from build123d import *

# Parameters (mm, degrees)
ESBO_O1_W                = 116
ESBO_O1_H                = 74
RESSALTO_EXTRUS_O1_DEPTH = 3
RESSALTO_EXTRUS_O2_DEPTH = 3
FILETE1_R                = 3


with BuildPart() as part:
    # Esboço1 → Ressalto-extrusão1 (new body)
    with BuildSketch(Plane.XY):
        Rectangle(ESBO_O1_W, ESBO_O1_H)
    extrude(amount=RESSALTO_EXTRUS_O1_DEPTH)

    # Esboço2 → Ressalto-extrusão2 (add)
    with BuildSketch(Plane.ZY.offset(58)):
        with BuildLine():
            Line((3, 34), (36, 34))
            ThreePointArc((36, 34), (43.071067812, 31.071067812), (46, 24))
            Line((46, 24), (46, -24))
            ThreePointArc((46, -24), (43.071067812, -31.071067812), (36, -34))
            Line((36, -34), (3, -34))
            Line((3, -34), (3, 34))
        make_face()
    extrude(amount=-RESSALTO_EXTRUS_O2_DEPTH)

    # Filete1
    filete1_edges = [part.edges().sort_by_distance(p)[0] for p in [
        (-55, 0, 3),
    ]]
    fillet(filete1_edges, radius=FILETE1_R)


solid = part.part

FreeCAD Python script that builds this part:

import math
import FreeCAD as App
import Part
import Sketcher
from FreeCAD import Vector


def edges_at(feature, points):
    """Names of the edges that pass closest to the given points."""
    edges = feature.Shape.Edges
    near = lambda p: min(range(len(edges)), key=lambda i: edges[i].distToShape(Part.Vertex(*p))[0])
    return sorted({f"Edge{near(p) + 1}" for p in points})


def add_polygon(sketch, points):
    """Adds a closed chain of lines whose ends are joined by coincident constraints."""
    first, n = sketch.GeometryCount, len(points)
    for a, b in zip(points, points[1:] + points[:1]):
        sketch.addGeometry(Part.LineSegment(App.Vector(*a, 0), App.Vector(*b, 0)), False)
    for i in range(n):
        sketch.addConstraint(Sketcher.Constraint("Coincident", first + i, 2, first + (i + 1) % n, 1))

doc = App.newDocument("Part")
params = doc.addObject("Spreadsheet::Sheet", "Params")
for row, (alias, value) in enumerate([
    ("sketch1_width", "116 mm"),
    ("sketch1_height", "74 mm"),
    ("pad1_length", "3 mm"),
    ("sketch2_radius", "10 mm"),
    ("sketch2_width", "68 mm"),
    ("sketch2_height", "33 mm"),
    ("pad2_length", "3 mm"),
    ("fillet_radius", "3 mm"),
], start=1):
    params.set(f"A{row}", alias)
    params.set(f"B{row}", "=" + value)
    params.setAlias(f"B{row}", alias)

body = doc.addObject("PartDesign::Body", "Body")

# Sketch on XY plane
sketch1 = body.newObject("Sketcher::SketchObject", "Sketch")
sketch1.AttachmentSupport = (doc.getObject("XY_Plane"), [""])
sketch1.MapMode = "FlatFace"
add_polygon(sketch1, [(-58, 37), (-58, -37), (58, -37), (58, 37)])  # lines 0-3
sketch1.addConstraint([
    Sketcher.Constraint("Vertical", 0),
    Sketcher.Constraint("Horizontal", 1),
    Sketcher.Constraint("Vertical", 2),
    Sketcher.Constraint("Horizontal", 3),
    Sketcher.Constraint("Symmetric", 0, 2, 2, 2, -1, 1),
    Sketcher.Constraint("DistanceX", 1, 1, 1, 2, 116.0),
    Sketcher.Constraint("DistanceY", 0, 2, 0, 1, 74.0),
])
sketch1.setExpression("Constraints[9]", "Params.sketch1_width")
sketch1.setExpression("Constraints[10]", "Params.sketch1_height")
pad1 = body.newObject("PartDesign::Pad", "Pad")
pad1.Profile = sketch1
pad1.setExpression("Length", "Params.pad1_length")

# Sketch on YZ plane
sketch2 = body.newObject("Sketcher::SketchObject", "Sketch001")
sketch2.AttachmentSupport = (doc.getObject("YZ_Plane"), [""])
sketch2.MapMode = "FlatFace"
sketch2.AttachmentOffset = App.Placement(Vector(0, 0, -58), App.Rotation())
sketch2.addGeometry([
    Part.LineSegment(Vector(34, 36, 0), Vector(34, 3, 0)),  # 0
    Part.LineSegment(Vector(34, 3, 0), Vector(-34, 3, 0)),  # 1
    Part.LineSegment(Vector(-34, 3, 0), Vector(-34, 36, 0)),  # 2
    Part.ArcOfCircle(Part.Circle(Vector(-24, 36, 0), Vector(0, 0, 1), 10), math.radians(90), math.radians(180)),  # 3
    Part.LineSegment(Vector(-24, 46, 0), Vector(24, 46, 0)),  # 4
    Part.ArcOfCircle(Part.Circle(Vector(24, 36, 0), Vector(0, 0, 1), 10), math.radians(0), math.radians(90)),  # 5
], False)
sketch2.addConstraint([
    Sketcher.Constraint("Coincident", 0, 2, 1, 1),
    Sketcher.Constraint("Coincident", 1, 2, 2, 1),
    Sketcher.Constraint("Tangent", 2, 2, 3, 2),
    Sketcher.Constraint("Tangent", 3, 1, 4, 1),
    Sketcher.Constraint("Tangent", 4, 2, 5, 2),
    Sketcher.Constraint("Tangent", 5, 1, 0, 1),
    Sketcher.Constraint("Vertical", 0),
    Sketcher.Constraint("Horizontal", 1),
    Sketcher.Constraint("Vertical", 2),
    Sketcher.Constraint("Horizontal", 4),
    Sketcher.Constraint("Equal", 3, 5),
    Sketcher.Constraint("Radius", 3, 10.0),
    Sketcher.Constraint("DistanceX", 1, 2, 1, 1, 68.0),
    Sketcher.Constraint("DistanceY", 0, 2, 0, 1, 33.0),
    Sketcher.Constraint("DistanceX", 3, 3, -1, 1, 24.0),
    Sketcher.Constraint("DistanceY", -1, 1, 3, 3, 36.0),
])
sketch2.setExpression("Constraints[11]", "Params.sketch2_radius")
sketch2.setExpression("Constraints[12]", "Params.sketch2_width")
sketch2.setExpression("Constraints[13]", "Params.sketch2_height")
pad2 = body.newObject("PartDesign::Pad", "Pad001")
pad2.Profile = sketch2
pad2.setExpression("Length", "Params.pad2_length")
doc.recompute()

fillet = body.newObject("PartDesign::Fillet", "Fillet")
fillet.Base = (pad2, edges_at(pad2, [(-55, 0, 3)]))
fillet.setExpression("Radius", "Params.fillet_radius")

doc.recompute()
